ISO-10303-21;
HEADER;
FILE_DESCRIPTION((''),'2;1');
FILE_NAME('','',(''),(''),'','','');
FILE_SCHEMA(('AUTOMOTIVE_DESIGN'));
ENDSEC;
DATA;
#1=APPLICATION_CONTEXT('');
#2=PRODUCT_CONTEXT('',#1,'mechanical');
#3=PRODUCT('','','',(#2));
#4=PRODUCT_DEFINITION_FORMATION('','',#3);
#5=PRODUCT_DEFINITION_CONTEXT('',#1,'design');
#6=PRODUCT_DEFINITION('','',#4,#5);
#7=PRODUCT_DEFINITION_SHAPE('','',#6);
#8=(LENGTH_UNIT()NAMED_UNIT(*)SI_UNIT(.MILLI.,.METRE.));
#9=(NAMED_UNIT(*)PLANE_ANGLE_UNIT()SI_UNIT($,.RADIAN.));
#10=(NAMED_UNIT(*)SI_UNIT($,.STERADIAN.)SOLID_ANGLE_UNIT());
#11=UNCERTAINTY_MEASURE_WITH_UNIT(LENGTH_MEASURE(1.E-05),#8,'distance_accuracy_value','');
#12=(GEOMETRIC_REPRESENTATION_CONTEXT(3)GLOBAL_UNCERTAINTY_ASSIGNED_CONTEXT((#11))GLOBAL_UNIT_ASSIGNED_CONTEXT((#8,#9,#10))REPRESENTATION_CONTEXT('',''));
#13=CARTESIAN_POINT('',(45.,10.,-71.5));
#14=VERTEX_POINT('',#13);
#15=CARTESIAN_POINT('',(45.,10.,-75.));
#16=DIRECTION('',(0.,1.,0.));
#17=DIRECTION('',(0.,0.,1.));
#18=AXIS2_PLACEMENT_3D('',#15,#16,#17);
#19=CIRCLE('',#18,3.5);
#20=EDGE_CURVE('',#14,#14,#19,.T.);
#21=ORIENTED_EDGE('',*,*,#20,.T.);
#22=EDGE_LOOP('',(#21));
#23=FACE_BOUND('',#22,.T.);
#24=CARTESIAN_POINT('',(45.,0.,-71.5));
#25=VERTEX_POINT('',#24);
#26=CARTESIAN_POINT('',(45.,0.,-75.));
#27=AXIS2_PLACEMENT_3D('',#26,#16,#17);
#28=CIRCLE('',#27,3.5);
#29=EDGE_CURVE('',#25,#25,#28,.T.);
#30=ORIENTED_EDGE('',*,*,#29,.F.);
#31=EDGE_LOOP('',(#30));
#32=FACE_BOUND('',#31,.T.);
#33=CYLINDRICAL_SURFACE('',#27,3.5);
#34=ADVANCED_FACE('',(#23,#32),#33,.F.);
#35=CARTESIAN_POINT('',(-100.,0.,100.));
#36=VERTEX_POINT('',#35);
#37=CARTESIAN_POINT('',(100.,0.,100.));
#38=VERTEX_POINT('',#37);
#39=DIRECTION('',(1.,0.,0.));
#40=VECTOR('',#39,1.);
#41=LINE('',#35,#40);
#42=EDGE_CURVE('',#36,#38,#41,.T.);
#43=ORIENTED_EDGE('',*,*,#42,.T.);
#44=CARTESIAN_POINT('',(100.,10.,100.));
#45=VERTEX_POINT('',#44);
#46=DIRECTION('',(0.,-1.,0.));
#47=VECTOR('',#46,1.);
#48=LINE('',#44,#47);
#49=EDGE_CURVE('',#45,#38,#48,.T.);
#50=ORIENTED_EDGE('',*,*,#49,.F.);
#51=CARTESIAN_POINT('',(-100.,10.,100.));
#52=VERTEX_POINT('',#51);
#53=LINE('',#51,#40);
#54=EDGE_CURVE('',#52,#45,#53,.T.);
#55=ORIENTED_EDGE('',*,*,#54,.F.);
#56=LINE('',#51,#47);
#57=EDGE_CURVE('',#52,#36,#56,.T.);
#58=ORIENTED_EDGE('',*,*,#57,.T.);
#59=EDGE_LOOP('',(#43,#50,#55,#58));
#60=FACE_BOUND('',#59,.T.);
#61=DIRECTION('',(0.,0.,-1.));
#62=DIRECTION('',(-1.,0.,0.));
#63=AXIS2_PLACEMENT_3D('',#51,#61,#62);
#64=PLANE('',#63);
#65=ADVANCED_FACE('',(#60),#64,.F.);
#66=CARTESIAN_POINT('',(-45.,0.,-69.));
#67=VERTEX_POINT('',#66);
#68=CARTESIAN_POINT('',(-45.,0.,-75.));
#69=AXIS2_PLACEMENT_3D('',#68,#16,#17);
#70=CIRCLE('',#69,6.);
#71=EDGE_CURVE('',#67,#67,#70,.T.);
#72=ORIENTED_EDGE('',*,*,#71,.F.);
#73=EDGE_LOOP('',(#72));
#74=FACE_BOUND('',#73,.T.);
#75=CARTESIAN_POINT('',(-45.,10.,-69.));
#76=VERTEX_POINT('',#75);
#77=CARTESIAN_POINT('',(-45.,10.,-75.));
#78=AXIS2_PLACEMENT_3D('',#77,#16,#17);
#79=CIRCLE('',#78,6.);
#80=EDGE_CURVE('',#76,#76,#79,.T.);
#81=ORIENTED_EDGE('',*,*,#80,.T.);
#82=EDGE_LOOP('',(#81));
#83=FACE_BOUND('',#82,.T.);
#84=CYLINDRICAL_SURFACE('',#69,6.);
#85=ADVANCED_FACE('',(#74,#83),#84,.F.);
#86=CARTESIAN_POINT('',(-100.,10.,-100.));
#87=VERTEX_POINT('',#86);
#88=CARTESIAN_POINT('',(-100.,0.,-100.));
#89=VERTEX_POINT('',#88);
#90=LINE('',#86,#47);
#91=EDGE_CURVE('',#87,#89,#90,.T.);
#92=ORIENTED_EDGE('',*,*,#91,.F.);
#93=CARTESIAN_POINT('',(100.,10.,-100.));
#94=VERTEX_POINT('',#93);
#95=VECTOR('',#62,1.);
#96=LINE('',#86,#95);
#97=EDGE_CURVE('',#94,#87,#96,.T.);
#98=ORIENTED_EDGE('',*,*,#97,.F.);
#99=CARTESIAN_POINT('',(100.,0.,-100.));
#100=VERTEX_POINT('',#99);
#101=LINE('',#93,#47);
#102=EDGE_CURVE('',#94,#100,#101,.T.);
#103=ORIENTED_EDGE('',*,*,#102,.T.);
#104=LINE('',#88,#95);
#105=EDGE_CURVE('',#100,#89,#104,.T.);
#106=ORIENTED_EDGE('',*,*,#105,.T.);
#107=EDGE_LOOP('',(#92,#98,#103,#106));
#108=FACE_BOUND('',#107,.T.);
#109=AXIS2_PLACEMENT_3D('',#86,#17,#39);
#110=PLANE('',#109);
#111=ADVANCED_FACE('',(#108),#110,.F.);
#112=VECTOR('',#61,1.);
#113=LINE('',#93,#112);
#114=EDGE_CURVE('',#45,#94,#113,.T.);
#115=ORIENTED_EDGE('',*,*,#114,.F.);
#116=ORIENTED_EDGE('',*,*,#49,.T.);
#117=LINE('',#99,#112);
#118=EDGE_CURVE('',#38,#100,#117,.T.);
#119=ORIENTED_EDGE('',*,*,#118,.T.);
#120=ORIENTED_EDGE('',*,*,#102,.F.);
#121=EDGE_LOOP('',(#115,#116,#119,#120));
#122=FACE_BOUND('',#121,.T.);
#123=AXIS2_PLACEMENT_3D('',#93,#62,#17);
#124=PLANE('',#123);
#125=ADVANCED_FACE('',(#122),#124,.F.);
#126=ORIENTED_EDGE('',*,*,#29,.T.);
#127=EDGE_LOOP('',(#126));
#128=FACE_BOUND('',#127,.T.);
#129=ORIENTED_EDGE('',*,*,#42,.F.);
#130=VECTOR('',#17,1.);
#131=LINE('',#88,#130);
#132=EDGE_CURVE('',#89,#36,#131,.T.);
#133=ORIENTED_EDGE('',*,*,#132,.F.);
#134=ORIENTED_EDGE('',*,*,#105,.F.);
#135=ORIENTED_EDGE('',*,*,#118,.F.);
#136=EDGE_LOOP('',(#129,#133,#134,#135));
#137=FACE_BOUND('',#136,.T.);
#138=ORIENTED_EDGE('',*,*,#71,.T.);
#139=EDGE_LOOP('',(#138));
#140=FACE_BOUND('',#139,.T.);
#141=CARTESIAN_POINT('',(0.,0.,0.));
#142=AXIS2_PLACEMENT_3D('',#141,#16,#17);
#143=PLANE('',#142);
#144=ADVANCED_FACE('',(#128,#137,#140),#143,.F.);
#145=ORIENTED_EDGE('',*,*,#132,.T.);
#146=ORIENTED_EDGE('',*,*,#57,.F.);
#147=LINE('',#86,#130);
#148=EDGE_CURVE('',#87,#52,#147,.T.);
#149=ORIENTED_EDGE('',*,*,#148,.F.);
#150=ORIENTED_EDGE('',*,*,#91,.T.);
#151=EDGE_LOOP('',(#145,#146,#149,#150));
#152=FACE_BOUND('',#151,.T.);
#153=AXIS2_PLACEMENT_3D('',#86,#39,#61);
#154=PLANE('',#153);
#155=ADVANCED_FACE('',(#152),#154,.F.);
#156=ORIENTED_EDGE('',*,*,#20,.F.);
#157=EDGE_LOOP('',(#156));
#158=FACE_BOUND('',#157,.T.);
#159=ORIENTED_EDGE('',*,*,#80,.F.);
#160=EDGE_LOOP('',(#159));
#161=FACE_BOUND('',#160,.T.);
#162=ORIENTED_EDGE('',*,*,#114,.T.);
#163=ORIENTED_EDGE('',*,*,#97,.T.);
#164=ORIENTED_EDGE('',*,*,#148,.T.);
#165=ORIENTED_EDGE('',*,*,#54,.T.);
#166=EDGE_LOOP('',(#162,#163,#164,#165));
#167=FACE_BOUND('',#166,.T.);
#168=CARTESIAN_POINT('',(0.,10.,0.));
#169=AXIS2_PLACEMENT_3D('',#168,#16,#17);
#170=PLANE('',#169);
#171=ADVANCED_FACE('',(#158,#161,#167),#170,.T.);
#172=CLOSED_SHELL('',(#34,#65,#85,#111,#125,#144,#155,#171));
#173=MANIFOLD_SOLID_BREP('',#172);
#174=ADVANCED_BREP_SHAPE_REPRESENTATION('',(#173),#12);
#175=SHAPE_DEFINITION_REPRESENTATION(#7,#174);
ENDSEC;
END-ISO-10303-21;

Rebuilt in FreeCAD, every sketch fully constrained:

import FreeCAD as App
import Part
import Sketcher
from FreeCAD import Vector
Q = App.Units.Quantity

doc = App.newDocument("Part")
params = doc.addObject("Spreadsheet::Sheet", "Params")
for row, (alias, value) in enumerate([
    ("sketch1_width", "200 mm"),
    ("pad1_length", "10 mm"),
    ("sketch2_diameter", "7 mm"),
    ("sketch3_diameter", "12 mm"),
], start=1):
    params.set(f"A{row}", alias)
    params.set(f"B{row}", "=" + value)
    params.setAlias(f"B{row}", alias)

body = doc.addObject("PartDesign::Body", "Body")

# Sketch on XZ plane
sketch1 = doc.addObject("Sketcher::SketchObject", "Sketch")
body.addObject(sketch1)
sketch1.AttachmentSupport = (doc.XZ_Plane, [""])
sketch1.MapMode = "FlatFace"
sketch1.addGeometry(Part.LineSegment(Vector(-100, -100, 0), Vector(-100, 100, 0)), False)
sketch1.addGeometry(Part.LineSegment(Vector(-100, 100, 0), Vector(100, 100, 0)), False)
sketch1.addGeometry(Part.LineSegment(Vector(100, 100, 0), Vector(100, -100, 0)), False)
sketch1.addGeometry(Part.LineSegment(Vector(100, -100, 0), Vector(-100, -100, 0)), False)
sketch1.addConstraint(Sketcher.Constraint("Coincident", 0, 2, 1, 1))
sketch1.addConstraint(Sketcher.Constraint("Coincident", 1, 2, 2, 1))
sketch1.addConstraint(Sketcher.Constraint("Coincident", 2, 2, 3, 1))
sketch1.addConstraint(Sketcher.Constraint("Coincident", 3, 2, 0, 1))
sketch1.addConstraint(Sketcher.Constraint("Vertical", 0))
sketch1.addConstraint(Sketcher.Constraint("Horizontal", 1))
sketch1.addConstraint(Sketcher.Constraint("Vertical", 2))
sketch1.addConstraint(Sketcher.Constraint("Horizontal", 3))
sketch1.addConstraint(Sketcher.Constraint("Symmetric", 0, 2, 2, 2, -1, 1))
sketch1.addConstraint(Sketcher.Constraint("Equal", 3, 0))
sketch1.addConstraint(Sketcher.Constraint("DistanceX", 1, 1, 1, 2, Q("200 mm")))
sketch1.setExpression("Constraints[10]", "Params.sketch1_width")
pad1 = doc.addObject("PartDesign::Pad", "Pad")
body.addObject(pad1)
pad1.Profile = sketch1
pad1.setExpression("Length", "Params.pad1_length")
pad1.Reversed = True

# Sketch on XZ plane
sketch2 = doc.addObject("Sketcher::SketchObject", "Sketch001")
body.addObject(sketch2)
sketch2.AttachmentSupport = (doc.XZ_Plane, [""])
sketch2.MapMode = "FlatFace"
sketch2.AttachmentOffset = App.Placement(Vector(0, 0, -10), App.Rotation())
sketch2.addGeometry(Part.Circle(Vector(45, -75, 0), Vector(0, 0, 1), 3.5), False)
sketch2.addConstraint(Sketcher.Constraint("Diameter", 0, Q("7 mm")))
sketch2.addConstraint(Sketcher.Constraint("DistanceX", -1, 1, 0, 3, Q("45 mm")))
sketch2.addConstraint(Sketcher.Constraint("DistanceY", 0, 3, -1, 1, Q("75 mm")))
sketch2.setExpression("Constraints[0]", "Params.sketch2_diameter")
pocket1 = doc.addObject("PartDesign::Pocket", "Pocket")
body.addObject(pocket1)
pocket1.Profile = sketch2
pocket1.Type = "ThroughAll"
pocket1.Reversed = True

# Sketch on XZ plane
sketch3 = doc.addObject("Sketcher::SketchObject", "Sketch002")
body.addObject(sketch3)
sketch3.AttachmentSupport = (doc.XZ_Plane, [""])
sketch3.MapMode = "FlatFace"
sketch3.AttachmentOffset = App.Placement(Vector(0, 0, -10), App.Rotation())
sketch3.addGeometry(Part.Circle(Vector(-45, -75, 0), Vector(0, 0, 1), 6), False)
sketch3.addConstraint(Sketcher.Constraint("Diameter", 0, Q("12 mm")))
sketch3.addConstraint(Sketcher.Constraint("DistanceX", 0, 3, -1, 1, Q("45 mm")))
sketch3.addConstraint(Sketcher.Constraint("DistanceY", 0, 3, -1, 1, Q("75 mm")))
sketch3.setExpression("Constraints[0]", "Params.sketch3_diameter")
pocket2 = doc.addObject("PartDesign::Pocket", "Pocket001")
body.addObject(pocket2)
pocket2.Profile = sketch3
pocket2.Type = "ThroughAll"
pocket2.Reversed = True

doc.recompute()
